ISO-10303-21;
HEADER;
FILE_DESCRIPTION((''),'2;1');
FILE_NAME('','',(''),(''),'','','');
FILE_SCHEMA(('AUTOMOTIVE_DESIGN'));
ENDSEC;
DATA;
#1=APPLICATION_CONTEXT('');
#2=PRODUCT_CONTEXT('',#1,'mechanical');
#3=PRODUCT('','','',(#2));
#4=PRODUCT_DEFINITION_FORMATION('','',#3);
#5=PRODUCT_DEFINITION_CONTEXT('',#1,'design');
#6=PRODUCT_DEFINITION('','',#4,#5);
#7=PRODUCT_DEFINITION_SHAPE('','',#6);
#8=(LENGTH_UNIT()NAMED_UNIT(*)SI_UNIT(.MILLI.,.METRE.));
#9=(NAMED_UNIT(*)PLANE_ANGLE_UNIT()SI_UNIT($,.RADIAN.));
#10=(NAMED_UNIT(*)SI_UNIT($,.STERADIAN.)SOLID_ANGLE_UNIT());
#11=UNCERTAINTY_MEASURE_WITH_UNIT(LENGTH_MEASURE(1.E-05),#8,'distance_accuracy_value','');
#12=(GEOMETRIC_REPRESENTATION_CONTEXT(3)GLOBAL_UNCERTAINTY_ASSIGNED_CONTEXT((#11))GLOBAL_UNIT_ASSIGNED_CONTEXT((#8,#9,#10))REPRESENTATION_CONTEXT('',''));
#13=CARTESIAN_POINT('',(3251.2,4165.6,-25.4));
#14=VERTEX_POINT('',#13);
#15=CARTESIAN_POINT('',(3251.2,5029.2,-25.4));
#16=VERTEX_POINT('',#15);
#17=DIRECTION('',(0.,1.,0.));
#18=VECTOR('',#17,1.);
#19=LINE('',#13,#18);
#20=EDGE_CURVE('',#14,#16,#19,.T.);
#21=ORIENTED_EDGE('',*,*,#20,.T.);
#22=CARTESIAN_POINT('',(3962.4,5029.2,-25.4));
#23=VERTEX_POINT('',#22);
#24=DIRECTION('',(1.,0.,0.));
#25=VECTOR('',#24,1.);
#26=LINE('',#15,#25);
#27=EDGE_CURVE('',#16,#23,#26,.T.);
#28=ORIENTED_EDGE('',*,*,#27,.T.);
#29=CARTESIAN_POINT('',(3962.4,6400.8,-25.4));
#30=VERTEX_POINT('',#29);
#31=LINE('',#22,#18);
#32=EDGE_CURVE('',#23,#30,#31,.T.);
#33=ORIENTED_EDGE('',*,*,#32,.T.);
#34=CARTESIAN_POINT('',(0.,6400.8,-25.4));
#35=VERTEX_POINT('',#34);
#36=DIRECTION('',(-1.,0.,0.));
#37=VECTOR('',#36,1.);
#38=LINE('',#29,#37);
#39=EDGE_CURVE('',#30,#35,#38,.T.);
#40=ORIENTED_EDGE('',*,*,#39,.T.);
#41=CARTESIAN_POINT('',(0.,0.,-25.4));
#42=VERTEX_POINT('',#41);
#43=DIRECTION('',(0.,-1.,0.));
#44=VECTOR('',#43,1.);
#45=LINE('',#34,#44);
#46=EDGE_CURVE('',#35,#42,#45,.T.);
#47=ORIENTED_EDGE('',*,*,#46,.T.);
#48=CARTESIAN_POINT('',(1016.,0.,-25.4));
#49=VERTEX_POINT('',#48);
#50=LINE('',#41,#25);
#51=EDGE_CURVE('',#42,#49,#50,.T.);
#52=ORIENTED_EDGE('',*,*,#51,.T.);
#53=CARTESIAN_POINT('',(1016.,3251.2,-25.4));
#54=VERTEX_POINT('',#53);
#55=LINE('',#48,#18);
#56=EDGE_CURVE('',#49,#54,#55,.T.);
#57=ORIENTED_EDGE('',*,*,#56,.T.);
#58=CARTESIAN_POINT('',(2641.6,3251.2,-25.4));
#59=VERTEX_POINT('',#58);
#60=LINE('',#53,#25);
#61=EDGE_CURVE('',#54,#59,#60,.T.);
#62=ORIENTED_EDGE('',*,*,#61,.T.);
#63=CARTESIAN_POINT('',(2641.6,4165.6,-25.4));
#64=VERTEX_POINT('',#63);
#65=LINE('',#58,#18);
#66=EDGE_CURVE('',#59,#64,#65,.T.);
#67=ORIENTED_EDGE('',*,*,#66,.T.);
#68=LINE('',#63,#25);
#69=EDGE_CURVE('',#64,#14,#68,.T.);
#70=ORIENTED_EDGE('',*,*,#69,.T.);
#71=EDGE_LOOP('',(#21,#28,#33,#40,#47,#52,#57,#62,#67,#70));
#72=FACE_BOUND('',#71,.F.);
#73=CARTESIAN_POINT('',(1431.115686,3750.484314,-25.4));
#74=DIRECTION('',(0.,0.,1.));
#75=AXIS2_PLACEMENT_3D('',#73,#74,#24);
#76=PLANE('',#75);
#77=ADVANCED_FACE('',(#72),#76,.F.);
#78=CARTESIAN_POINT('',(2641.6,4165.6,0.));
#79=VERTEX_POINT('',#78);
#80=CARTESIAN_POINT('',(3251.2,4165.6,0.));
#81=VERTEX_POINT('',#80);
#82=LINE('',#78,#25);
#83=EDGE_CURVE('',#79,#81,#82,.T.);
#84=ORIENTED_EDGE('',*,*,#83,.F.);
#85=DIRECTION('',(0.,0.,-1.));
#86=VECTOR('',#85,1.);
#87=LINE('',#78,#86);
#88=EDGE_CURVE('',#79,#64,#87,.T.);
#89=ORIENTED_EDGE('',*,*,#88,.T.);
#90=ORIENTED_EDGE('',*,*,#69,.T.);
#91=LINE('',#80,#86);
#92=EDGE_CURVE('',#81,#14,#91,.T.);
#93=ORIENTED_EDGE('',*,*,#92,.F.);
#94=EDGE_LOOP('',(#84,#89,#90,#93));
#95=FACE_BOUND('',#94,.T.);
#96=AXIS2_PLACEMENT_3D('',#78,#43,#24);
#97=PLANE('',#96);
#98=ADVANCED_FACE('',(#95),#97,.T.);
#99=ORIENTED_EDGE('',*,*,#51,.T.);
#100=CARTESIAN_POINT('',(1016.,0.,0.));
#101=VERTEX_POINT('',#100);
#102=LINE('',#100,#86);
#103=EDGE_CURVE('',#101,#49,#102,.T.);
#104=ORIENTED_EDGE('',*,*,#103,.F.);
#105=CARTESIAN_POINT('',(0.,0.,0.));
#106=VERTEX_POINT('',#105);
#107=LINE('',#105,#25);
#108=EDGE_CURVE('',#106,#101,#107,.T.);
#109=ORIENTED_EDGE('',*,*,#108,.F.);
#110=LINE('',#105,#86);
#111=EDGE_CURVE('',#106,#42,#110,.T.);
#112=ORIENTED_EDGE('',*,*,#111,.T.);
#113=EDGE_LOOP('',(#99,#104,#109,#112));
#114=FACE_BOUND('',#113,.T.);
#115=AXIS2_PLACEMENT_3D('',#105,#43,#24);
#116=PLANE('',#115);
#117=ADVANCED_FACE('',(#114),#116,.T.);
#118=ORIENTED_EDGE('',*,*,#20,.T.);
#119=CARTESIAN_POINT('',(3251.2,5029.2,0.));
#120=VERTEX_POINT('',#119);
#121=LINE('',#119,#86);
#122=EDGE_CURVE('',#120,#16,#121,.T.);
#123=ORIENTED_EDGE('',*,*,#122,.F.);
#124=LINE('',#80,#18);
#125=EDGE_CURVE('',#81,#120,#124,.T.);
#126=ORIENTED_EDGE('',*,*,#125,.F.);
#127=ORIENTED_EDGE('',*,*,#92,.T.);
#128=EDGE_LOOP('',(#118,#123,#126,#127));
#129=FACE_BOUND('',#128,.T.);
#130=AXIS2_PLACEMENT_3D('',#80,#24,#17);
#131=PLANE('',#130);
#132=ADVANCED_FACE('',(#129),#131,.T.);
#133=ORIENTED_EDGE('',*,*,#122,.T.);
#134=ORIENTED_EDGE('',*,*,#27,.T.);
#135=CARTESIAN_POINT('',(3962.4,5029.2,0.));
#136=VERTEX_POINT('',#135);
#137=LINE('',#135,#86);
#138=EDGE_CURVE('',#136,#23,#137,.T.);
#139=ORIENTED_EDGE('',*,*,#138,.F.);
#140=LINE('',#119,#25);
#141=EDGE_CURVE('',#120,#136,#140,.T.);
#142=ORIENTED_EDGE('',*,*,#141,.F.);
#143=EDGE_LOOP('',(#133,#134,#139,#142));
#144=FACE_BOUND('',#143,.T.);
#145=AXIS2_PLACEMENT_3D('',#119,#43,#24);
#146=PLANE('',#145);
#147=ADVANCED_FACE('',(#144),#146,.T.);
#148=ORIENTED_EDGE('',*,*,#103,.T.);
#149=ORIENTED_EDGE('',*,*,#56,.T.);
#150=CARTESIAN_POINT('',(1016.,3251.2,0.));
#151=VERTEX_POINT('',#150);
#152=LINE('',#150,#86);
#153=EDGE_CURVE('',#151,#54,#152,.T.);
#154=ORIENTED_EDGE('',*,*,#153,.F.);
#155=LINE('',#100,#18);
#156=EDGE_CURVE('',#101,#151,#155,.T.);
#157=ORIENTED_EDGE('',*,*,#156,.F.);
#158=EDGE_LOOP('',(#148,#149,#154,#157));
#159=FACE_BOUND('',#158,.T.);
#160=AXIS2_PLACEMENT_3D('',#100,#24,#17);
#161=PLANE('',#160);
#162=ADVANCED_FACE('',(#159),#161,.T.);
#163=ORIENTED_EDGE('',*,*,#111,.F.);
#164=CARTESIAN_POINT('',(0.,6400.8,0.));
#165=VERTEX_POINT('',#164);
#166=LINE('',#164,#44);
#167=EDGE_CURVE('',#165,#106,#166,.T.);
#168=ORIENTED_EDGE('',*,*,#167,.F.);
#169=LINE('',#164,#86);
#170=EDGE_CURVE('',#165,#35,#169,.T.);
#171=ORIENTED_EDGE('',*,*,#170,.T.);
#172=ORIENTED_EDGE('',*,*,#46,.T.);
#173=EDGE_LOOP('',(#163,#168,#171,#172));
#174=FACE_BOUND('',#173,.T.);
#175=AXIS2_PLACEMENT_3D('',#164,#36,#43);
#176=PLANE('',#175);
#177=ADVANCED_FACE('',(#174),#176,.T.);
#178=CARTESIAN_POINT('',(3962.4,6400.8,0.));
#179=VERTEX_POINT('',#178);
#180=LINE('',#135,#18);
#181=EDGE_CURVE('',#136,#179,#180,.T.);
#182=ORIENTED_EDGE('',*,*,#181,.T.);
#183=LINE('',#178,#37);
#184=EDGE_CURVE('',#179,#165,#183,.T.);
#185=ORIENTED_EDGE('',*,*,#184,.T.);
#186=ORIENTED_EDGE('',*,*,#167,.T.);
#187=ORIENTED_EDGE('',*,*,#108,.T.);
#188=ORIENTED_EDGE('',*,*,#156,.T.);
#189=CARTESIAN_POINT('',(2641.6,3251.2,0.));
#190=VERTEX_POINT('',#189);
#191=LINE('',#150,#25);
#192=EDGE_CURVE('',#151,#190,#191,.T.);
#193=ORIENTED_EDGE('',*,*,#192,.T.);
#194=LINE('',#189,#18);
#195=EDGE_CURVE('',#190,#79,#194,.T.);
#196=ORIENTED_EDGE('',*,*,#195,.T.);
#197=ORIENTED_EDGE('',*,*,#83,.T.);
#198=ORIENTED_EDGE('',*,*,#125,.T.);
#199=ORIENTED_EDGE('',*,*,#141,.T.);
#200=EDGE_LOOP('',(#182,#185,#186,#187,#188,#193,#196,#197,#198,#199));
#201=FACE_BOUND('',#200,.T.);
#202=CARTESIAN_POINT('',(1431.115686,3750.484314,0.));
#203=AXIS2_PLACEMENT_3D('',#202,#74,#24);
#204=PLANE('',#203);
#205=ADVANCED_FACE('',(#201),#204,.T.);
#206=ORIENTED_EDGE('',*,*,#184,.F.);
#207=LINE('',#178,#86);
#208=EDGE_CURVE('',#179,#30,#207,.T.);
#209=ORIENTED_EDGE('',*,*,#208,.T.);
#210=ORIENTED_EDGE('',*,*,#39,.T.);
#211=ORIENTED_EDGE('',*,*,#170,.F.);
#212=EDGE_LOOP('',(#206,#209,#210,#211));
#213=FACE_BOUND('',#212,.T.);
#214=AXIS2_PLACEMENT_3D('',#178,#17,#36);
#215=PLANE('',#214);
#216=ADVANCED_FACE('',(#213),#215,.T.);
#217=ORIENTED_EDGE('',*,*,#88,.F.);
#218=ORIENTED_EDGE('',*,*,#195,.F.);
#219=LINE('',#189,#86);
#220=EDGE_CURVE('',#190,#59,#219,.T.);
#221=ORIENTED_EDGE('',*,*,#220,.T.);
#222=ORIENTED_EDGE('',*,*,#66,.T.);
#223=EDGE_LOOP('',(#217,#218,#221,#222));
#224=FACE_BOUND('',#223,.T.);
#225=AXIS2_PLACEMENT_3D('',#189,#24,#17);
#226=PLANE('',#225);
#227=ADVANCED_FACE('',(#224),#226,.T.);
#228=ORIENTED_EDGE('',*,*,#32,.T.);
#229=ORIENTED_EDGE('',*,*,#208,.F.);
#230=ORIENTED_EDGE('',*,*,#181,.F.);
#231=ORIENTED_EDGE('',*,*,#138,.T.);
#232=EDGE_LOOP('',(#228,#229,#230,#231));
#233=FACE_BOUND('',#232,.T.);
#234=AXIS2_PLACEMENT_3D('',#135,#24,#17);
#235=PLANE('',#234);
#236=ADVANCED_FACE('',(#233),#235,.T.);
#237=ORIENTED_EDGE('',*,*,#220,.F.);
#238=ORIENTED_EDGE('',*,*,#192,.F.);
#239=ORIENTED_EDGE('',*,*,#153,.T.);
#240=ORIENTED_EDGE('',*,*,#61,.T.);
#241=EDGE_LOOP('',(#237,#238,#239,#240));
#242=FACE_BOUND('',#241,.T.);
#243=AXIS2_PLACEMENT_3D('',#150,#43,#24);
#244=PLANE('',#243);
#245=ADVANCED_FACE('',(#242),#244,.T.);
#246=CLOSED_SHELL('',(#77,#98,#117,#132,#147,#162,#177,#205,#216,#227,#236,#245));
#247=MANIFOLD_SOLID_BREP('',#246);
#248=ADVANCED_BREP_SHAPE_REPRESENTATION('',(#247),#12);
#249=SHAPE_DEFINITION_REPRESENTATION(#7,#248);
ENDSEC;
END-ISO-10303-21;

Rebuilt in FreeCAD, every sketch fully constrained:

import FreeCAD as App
import Part
import Sketcher
from FreeCAD import Vector
Q = App.Units.Quantity

doc = App.newDocument("Part")
params = doc.addObject("Spreadsheet::Sheet", "Params")
for row, (alias, value) in enumerate([
    ("sketch1_width", "40 in"),
    ("sketch1_width2", "64 in"),
    ("sketch1_width3", "24 in"),
    ("sketch1_width4", "28 in"),
    ("sketch1_height", "252 in"),
    ("pad1_length", "1 in"),
], start=1):
    params.set(f"A{row}", alias)
    params.set(f"B{row}", "=" + value)
    params.setAlias(f"B{row}", alias)

body = doc.addObject("PartDesign::Body", "Body")

sketch1 = body.newObject("Sketcher::SketchObject", "Sketch")
sketch1.AttachmentSupport = (doc.getObject("XY_Plane"), [""])
sketch1.MapMode = "FlatFace"
sketch1.addGeometry([
    Part.LineSegment(Vector(0, 6401, 0), Vector(0, 0, 0)),
    Part.LineSegment(Vector(0, 0, 0), Vector(1016, 0, 0)),
    Part.LineSegment(Vector(1016, 0, 0), Vector(1016, 3251, 0)),
    Part.LineSegment(Vector(1016, 3251, 0), Vector(2642, 3251, 0)),
    Part.LineSegment(Vector(2642, 3251, 0), Vector(2642, 4166, 0)),
    Part.LineSegment(Vector(2642, 4166, 0), Vector(3251, 4166, 0)),
    Part.LineSegment(Vector(3251, 4166, 0), Vector(3251, 5029, 0)),
    Part.LineSegment(Vector(3251, 5029, 0), Vector(3962, 5029, 0)),
    Part.LineSegment(Vector(3962, 5029, 0), Vector(3962, 6401, 0)),
    Part.LineSegment(Vector(3962, 6401, 0), Vector(0, 6401, 0)),
], False)
sketch1.addConstraint([
    Sketcher.Constraint("Coincident", 0, 2, 1, 1),
    Sketcher.Constraint("Coincident", 1, 2, 2, 1),
    Sketcher.Constraint("Coincident", 2, 2, 3, 1),
    Sketcher.Constraint("Coincident", 3, 2, 4, 1),
    Sketcher.Constraint("Coincident", 4, 2, 5, 1),
    Sketcher.Constraint("Coincident", 5, 2, 6, 1),
    Sketcher.Constraint("Coincident", 6, 2, 7, 1),
    Sketcher.Constraint("Coincident", 7, 2, 8, 1),
    Sketcher.Constraint("Coincident", 8, 2, 9, 1),
    Sketcher.Constraint("Coincident", 9, 2, 0, 1),
    Sketcher.Constraint("Vertical", 0),
    Sketcher.Constraint("Horizontal", 1),
    Sketcher.Constraint("Vertical", 2),
    Sketcher.Constraint("Horizontal", 3),
    Sketcher.Constraint("Vertical", 4),
    Sketcher.Constraint("Horizontal", 5),
    Sketcher.Constraint("Vertical", 6),
    Sketcher.Constraint("Horizontal", 7),
    Sketcher.Constraint("Vertical", 8),
    Sketcher.Constraint("Horizontal", 9),
    Sketcher.Constraint("Coincident", 0, 2, -1, 1),
    Sketcher.Constraint("DistanceX", 1, 1, 1, 2, Q("40 in")),
    Sketcher.Constraint("DistanceX", 3, 1, 3, 2, Q("64 in")),
    Sketcher.Constraint("DistanceX", 5, 1, 5, 2, Q("24 in")),
    Sketcher.Constraint("DistanceX", 7, 1, 7, 2, Q("28 in")),
    Sketcher.Constraint("DistanceY", 0, 2, 0, 1, Q("252 in")),
    Sketcher.Constraint("DistanceY", 2, 1, 2, 2, Q("128 in")),
    Sketcher.Constraint("DistanceY", 4, 1, 4, 2, Q("36 in")),
    Sketcher.Constraint("DistanceY", 6, 1, 6, 2, Q("34 in")),
])
sketch1.setExpression("Constraints[21]", "Params.sketch1_width")
sketch1.setExpression("Constraints[22]", "Params.sketch1_width2")
sketch1.setExpression("Constraints[23]", "Params.sketch1_width3")
sketch1.setExpression("Constraints[24]", "Params.sketch1_width4")
sketch1.setExpression("Constraints[25]", "Params.sketch1_height")
pad1 = body.newObject("PartDesign::Pad", "Pad")
pad1.Profile = sketch1
pad1.setExpression("Length", "Params.pad1_length")
pad1.Reversed = True

doc.recompute()
